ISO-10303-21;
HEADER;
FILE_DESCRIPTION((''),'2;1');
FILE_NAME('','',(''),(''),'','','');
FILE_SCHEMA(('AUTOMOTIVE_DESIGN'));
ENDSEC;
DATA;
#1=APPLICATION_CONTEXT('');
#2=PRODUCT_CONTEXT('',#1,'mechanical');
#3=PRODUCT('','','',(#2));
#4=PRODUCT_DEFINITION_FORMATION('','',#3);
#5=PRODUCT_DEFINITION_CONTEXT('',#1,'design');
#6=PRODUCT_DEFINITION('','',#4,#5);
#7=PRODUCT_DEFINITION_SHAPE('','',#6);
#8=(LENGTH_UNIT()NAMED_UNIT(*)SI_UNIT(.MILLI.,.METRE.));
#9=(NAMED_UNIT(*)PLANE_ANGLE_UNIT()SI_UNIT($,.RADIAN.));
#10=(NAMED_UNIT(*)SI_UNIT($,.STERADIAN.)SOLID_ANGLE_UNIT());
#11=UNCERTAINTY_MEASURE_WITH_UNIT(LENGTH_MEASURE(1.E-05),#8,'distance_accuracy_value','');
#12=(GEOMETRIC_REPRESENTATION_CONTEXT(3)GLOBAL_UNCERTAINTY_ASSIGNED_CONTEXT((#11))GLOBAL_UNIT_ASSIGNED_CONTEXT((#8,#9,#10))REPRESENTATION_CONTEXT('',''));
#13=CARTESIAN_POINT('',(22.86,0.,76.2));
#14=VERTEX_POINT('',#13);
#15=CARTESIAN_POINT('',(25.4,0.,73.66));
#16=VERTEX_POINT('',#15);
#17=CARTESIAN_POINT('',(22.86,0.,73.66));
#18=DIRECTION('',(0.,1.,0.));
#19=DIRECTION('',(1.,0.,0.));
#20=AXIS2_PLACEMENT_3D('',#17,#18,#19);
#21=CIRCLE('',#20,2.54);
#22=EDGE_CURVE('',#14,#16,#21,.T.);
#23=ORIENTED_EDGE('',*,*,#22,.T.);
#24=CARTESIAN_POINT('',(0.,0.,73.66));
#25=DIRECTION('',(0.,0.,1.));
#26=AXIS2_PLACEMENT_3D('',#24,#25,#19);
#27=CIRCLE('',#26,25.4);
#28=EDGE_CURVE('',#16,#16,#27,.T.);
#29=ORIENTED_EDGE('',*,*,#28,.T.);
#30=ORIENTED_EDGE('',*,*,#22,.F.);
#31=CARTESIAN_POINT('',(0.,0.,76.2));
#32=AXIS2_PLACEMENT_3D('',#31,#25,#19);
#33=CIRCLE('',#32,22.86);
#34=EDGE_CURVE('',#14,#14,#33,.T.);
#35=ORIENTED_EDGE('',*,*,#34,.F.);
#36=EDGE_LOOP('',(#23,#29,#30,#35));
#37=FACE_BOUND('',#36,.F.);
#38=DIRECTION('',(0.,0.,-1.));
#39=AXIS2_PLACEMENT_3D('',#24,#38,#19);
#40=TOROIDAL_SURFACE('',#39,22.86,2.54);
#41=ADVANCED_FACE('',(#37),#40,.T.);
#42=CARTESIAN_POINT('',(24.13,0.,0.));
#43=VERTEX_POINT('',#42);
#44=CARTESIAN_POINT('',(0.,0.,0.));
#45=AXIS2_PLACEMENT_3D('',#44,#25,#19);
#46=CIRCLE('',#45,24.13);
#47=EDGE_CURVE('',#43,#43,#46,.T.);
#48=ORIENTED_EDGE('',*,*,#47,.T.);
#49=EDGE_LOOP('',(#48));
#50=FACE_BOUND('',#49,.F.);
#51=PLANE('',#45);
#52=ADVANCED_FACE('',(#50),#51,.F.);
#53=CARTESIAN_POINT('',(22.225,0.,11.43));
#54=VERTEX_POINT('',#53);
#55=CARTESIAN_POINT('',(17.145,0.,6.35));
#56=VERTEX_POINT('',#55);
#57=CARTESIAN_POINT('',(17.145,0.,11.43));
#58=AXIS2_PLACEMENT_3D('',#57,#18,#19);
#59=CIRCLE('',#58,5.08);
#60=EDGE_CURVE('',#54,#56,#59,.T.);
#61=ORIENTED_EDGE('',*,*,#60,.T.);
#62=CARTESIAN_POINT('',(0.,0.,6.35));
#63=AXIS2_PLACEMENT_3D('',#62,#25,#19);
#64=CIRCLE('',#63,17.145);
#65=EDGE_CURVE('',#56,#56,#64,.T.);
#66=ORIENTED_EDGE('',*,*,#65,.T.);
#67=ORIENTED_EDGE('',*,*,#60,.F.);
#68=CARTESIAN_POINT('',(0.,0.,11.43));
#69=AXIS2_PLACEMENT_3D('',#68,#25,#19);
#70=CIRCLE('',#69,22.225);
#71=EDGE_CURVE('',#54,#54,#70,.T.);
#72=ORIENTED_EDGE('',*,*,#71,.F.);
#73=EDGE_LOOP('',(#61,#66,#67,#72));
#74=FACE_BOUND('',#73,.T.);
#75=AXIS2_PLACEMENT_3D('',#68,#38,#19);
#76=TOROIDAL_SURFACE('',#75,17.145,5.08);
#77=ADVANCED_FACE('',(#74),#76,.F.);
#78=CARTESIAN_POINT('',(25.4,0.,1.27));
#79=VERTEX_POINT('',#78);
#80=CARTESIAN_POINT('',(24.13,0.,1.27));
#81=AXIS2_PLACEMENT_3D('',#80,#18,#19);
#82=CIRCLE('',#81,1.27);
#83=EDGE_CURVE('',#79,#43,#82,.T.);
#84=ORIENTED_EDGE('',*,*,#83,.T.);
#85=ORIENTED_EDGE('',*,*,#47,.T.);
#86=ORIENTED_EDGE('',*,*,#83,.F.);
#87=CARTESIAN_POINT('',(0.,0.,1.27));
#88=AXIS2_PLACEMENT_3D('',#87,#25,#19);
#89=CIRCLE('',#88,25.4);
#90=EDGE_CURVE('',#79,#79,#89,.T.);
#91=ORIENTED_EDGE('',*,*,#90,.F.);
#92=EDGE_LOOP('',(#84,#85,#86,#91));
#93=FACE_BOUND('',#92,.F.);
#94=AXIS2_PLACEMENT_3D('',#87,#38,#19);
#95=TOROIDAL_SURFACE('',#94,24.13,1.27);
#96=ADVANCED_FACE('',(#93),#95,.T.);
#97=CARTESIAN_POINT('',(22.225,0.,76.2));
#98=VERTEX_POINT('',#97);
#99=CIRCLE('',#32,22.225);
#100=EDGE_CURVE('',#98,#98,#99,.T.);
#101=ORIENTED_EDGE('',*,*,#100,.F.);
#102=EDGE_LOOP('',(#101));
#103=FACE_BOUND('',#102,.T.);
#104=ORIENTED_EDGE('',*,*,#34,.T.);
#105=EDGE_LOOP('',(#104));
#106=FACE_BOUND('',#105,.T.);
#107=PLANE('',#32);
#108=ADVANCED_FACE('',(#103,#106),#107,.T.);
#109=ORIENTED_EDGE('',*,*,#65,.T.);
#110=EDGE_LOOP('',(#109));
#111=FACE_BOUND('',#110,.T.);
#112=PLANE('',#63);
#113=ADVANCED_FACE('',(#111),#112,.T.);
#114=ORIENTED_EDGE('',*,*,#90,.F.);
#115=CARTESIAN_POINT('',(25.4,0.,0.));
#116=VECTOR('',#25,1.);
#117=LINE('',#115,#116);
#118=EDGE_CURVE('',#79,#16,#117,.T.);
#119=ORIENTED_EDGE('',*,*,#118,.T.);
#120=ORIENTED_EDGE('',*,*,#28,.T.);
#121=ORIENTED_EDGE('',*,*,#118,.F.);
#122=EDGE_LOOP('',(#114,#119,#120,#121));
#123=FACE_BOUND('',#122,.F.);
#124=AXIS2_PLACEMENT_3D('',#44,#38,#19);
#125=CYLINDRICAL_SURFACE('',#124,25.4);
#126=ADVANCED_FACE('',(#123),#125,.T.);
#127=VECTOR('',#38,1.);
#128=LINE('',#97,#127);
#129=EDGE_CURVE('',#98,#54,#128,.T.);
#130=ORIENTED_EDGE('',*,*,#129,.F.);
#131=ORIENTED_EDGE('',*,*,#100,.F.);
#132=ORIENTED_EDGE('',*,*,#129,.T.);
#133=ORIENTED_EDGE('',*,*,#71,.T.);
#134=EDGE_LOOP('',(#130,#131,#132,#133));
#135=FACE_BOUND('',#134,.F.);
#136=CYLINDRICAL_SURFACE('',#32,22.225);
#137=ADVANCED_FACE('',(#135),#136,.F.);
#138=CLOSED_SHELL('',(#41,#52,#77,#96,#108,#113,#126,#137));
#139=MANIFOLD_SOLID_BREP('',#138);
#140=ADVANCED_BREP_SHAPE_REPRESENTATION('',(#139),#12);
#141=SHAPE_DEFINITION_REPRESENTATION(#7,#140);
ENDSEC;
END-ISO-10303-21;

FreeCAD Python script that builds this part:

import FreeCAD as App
import Part
import Sketcher
Q = App.Units.Quantity


def edges_at(feature, points):
    """Names of the edges that pass closest to the given points."""
    edges = feature.Shape.Edges
    near = lambda p: min(range(len(edges)), key=lambda i: edges[i].distToShape(Part.Vertex(*p))[0])
    return sorted({f"Edge{near(p) + 1}" for p in points})

doc = App.newDocument("Part")
params = doc.addObject("Spreadsheet::Sheet", "Params")
for row, (alias, value) in enumerate([
    ("sketch1_diameter", "2 in"),
    ("pad1_length", "3 in"),
    ("sketch2_diameter", "1.75 in"),
    ("pocket1_length", "2.75 in"),
    ("fillet_radius", "0.2 in"),
    ("fillet2_radius", "0.1 in"),
    ("fillet3_radius", "0.05 in"),
], start=1):
    params.set(f"A{row}", alias)
    params.set(f"B{row}", "=" + value)
    params.setAlias(f"B{row}", alias)

body = doc.addObject("PartDesign::Body", "Body")

sketch1 = body.newObject("Sketcher::SketchObject", "Sketch")
sketch1.AttachmentSupport = (doc.getObject("XY_Plane"), [""])
sketch1.MapMode = "FlatFace"
sketch1.addGeometry(Part.Circle(App.Vector(0, 0, 0), App.Vector(0, 0, 1), 25), False)
sketch1.addConstraint(Sketcher.Constraint("Coincident", 0, 3, -1, 1))
sketch1.addConstraint(Sketcher.Constraint("Diameter", 0, Q("2 in")))
sketch1.setExpression("Constraints[1]", "Params.sketch1_diameter")
pad1 = body.newObject("PartDesign::Pad", "Pad")
pad1.Profile = sketch1
pad1.setExpression("Length", "Params.pad1_length")

sketch2 = body.newObject("Sketcher::SketchObject", "Sketch001")
sketch2.AttachmentSupport = (doc.getObject("XY_Plane"), [""])
sketch2.MapMode = "FlatFace"
sketch2.AttachmentOffset = App.Placement(App.Vector(0, 0, 3 * 25.4), App.Rotation())
sketch2.addGeometry(Part.Circle(App.Vector(0, 0, 0), App.Vector(0, 0, 1), 22), False)
sketch2.addConstraint(Sketcher.Constraint("Coincident", 0, 3, -1, 1))
sketch2.addConstraint(Sketcher.Constraint("Diameter", 0, Q("1.75 in")))
sketch2.setExpression("Constraints[1]", "Params.sketch2_diameter")
pocket1 = body.newObject("PartDesign::Pocket", "Pocket")
pocket1.Profile = sketch2
pocket1.setExpression("Length", "Params.pocket1_length")
doc.recompute()

fillet = body.newObject("PartDesign::Fillet", "Fillet")
fillet.Base = (pocket1, edges_at(pocket1, [(-22.225, 0, 6.35)]))
fillet.setExpression("Radius", "Params.fillet_radius")
doc.recompute()

fillet2 = body.newObject("PartDesign::Fillet", "Fillet001")
fillet2.Base = (fillet, edges_at(fillet, [(-25.4, 0, 76.2)]))
fillet2.setExpression("Radius", "Params.fillet2_radius")
doc.recompute()

fillet3 = body.newObject("PartDesign::Fillet", "Fillet002")
fillet3.Base = (fillet2, edges_at(fillet2, [(-25.4, 0, 0)]))
fillet3.setExpression("Radius", "Params.fillet3_radius")

doc.recompute()
